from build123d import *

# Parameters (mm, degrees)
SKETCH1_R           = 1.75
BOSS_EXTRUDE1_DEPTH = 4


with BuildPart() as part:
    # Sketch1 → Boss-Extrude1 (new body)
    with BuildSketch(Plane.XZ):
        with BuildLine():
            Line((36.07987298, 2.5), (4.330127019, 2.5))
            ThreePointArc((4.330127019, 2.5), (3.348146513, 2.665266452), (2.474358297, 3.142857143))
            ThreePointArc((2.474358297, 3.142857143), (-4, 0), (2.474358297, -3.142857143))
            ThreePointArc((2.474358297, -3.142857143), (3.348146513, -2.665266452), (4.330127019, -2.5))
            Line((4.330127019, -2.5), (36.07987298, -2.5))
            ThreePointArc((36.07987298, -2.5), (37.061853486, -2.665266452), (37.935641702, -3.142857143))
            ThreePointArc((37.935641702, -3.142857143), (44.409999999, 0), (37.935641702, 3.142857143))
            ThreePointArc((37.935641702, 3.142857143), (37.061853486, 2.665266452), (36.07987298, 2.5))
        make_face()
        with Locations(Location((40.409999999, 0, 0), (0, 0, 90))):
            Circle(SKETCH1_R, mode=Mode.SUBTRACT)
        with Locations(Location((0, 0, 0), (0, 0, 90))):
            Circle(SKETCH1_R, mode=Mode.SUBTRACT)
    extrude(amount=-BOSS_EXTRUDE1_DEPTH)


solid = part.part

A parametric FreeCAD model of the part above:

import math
import FreeCAD as App
import Part
import Sketcher
Q = App.Units.Quantity

doc = App.newDocument("Part")
body = doc.addObject("PartDesign::Body", "Body")

sketch1 = body.newObject("Sketcher::SketchObject", "Sketch")
sketch1.AttachmentSupport = (doc.getObject("XZ_Plane"), [""])
sketch1.MapMode = "FlatFace"
sketch1.addGeometry(Part.LineSegment(App.Vector(36.1, 2.5, 0), App.Vector(4.3, 2.5, 0)), False)
sketch1.addGeometry(Part.ArcOfCircle(Part.Circle(App.Vector(4.3, 5.5, 0), App.Vector(0, 0, 1), 3), math.radians(-128), math.radians(-90)), False)
sketch1.addGeometry(Part.ArcOfCircle(Part.Circle(App.Vector(0, 0, 0), App.Vector(0, 0, 1), 4), math.radians(52), math.radians(308)), False)
sketch1.addGeometry(Part.ArcOfCircle(Part.Circle(App.Vector(4.3, -5.5, 0), App.Vector(0, 0, 1), 3), math.radians(90), math.radians(128)), False)
sketch1.addGeometry(Part.LineSegment(App.Vector(4.3, -2.5, 0), App.Vector(36.1, -2.5, 0)), False)
sketch1.addGeometry(Part.ArcOfCircle(Part.Circle(App.Vector(36.1, -5.5, 0), App.Vector(0, 0, 1), 3), math.radians(52), math.radians(90)), False)
sketch1.addGeometry(Part.ArcOfCircle(Part.Circle(App.Vector(40.4, 0, 0), App.Vector(0, 0, 1), 4), math.radians(-128), math.radians(128)), False)
sketch1.addGeometry(Part.ArcOfCircle(Part.Circle(App.Vector(36.1, 5.5, 0), App.Vector(0, 0, 1), 3), math.radians(-90), math.radians(-52)), False)
sketch1.addGeometry(Part.Circle(App.Vector(0, 0, 0), App.Vector(0, 0, 1), 1.8), False)
sketch1.addGeometry(Part.Circle(App.Vector(40.4, 0, 0), App.Vector(0, 0, 1), 1.8), False)
sketch1.addConstraint(Sketcher.Constraint("Tangent", 0, 2, 1, 2))
sketch1.addConstraint(Sketcher.Constraint("Tangent", 1, 1, 2, 1))
sketch1.addConstraint(Sketcher.Constraint("Tangent", 2, 2, 3, 2))
sketch1.addConstraint(Sketcher.Constraint("Tangent", 3, 1, 4, 1))
sketch1.addConstraint(Sketcher.Constraint("Tangent", 4, 2, 5, 2))
sketch1.addConstraint(Sketcher.Constraint("Tangent", 5, 1, 6, 1))
sketch1.addConstraint(Sketcher.Constraint("Tangent", 6, 2, 7, 2))
sketch1.addConstraint(Sketcher.Constraint("Tangent", 7, 1, 0, 1))
sketch1.addConstraint(Sketcher.Constraint("Horizontal", 0))
sketch1.addConstraint(Sketcher.Constraint("Horizontal", 4))
sketch1.addConstraint(Sketcher.Constraint("Coincident", 2, 3, -1, 1))
sketch1.addConstraint(Sketcher.Constraint("Coincident", 8, 3, -1, 1))
sketch1.addConstraint(Sketcher.Constraint("Coincident", 9, 3, 6, 3))
sketch1.addConstraint(Sketcher.Constraint("Equal", 1, 3))
sketch1.addConstraint(Sketcher.Constraint("Equal", 3, 5))
sketch1.addConstraint(Sketcher.Constraint("Equal", 2, 6))
sketch1.addConstraint(Sketcher.Constraint("Equal", 5, 7))
sketch1.addConstraint(Sketcher.Constraint("Equal", 8, 9))
sketch1.addConstraint(Sketcher.Constraint("Symmetric", 5, 3, 7, 3, -1))
sketch1.addConstraint(Sketcher.Constraint("Radius", 1, Q("3 mm")))
sketch1.addConstraint(Sketcher.Constraint("Radius", 2, Q("4 mm")))
sketch1.addConstraint(Sketcher.Constraint("Diameter", 8, Q("3.5 mm")))
sketch1.addConstraint(Sketcher.Constraint("DistanceY", 3, 3, 1, 3, Q("11 mm")))
sketch1.addConstraint(Sketcher.Constraint("DistanceX", -1, 1, 6, 3, Q("40.41 mm")))
pad1 = body.newObject("PartDesign::Pad", "Pad")
pad1.Profile = sketch1
pad1.Length = 4
pad1.Reversed = True

doc.recompute()
